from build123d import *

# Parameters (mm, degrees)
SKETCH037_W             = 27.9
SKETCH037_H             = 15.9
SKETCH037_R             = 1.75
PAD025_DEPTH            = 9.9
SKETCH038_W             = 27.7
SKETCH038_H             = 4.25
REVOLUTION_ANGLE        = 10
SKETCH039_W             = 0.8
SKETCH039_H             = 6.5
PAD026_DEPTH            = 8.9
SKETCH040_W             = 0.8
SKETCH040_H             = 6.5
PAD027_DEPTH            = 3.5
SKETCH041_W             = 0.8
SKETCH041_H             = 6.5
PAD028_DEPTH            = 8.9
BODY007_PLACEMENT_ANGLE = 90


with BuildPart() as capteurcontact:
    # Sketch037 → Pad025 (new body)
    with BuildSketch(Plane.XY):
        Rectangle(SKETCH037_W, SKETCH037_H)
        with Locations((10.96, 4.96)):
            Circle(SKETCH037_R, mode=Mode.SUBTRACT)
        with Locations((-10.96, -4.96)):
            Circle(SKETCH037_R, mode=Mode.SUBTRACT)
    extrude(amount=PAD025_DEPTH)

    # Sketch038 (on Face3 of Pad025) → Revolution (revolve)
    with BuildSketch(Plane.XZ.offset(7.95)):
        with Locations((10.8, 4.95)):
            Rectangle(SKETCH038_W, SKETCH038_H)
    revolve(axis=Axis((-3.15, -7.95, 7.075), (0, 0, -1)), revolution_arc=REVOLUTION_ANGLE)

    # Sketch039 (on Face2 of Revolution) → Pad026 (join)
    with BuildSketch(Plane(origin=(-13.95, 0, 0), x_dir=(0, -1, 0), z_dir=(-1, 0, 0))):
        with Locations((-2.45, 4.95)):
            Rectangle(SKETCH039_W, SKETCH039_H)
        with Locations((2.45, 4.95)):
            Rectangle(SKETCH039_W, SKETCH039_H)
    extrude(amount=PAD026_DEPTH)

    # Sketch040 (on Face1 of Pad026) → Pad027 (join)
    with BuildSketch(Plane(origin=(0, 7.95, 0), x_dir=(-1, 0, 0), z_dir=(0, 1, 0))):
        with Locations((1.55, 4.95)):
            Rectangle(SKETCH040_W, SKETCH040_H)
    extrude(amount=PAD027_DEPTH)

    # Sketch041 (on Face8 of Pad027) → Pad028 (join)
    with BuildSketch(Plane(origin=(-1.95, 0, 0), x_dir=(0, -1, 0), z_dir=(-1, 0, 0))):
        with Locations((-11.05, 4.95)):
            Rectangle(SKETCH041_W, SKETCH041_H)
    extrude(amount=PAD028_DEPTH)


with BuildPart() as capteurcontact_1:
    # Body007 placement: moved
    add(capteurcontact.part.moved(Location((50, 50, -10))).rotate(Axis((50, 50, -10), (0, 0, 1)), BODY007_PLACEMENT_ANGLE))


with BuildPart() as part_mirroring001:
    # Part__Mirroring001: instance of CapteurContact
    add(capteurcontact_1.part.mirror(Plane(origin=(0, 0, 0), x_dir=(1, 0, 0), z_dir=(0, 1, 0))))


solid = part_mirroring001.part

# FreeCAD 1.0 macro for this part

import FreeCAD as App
import Part
import Sketcher

doc = App.newDocument("Part")
body = doc.addObject("PartDesign::Body", "Body")

# Sketch on XY plane
sketch1 = doc.addObject("Sketcher::SketchObject", "Sketch")
body.addObject(sketch1)
sketch1.AttachmentSupport = (doc.XY_Plane, [""])
sketch1.MapMode = "FlatFace"
sketch1.addGeometry([
    Part.LineSegment(App.Vector(-13.9, 8, 0), App.Vector(-13.9, -8, 0)),  # 0
    Part.LineSegment(App.Vector(-13.9, -8, 0), App.Vector(13.9, -8, 0)),  # 1
    Part.LineSegment(App.Vector(13.9, -8, 0), App.Vector(13.9, 8, 0)),  # 2
    Part.LineSegment(App.Vector(13.9, 8, 0), App.Vector(-13.9, 8, 0)),  # 3
    Part.Circle(App.Vector(-11, -5, 0), App.Vector(0, 0, 1), 1.8),  # 4
    Part.Circle(App.Vector(11, 5, 0), App.Vector(0, 0, 1), 1.8),  # 5
], False)
sketch1.addConstraint([
    Sketcher.Constraint("Coincident", 0, 2, 1, 1),
    Sketcher.Constraint("Coincident", 1, 2, 2, 1),
    Sketcher.Constraint("Coincident", 2, 2, 3, 1),
    Sketcher.Constraint("Coincident", 3, 2, 0, 1),
    Sketcher.Constraint("Vertical", 0),
    Sketcher.Constraint("Horizontal", 1),
    Sketcher.Constraint("Vertical", 2),
    Sketcher.Constraint("Horizontal", 3),
    Sketcher.Constraint("Equal", 4, 5),
    Sketcher.Constraint("Symmetric", 4, 3, 5, 3, -1, 1),
    Sketcher.Constraint("Symmetric", 0, 2, 2, 2, -1, 1),
    Sketcher.Constraint("Diameter", 4, 3.5),
    Sketcher.Constraint("DistanceX", 1, 1, 1, 2, 27.9),
    Sketcher.Constraint("DistanceY", 0, 2, 0, 1, 15.9),
    Sketcher.Constraint("DistanceX", 4, 3, -1, 1, 10.96),
    Sketcher.Constraint("DistanceY", 4, 3, -1, 1, 4.96),
])
pad1 = doc.addObject("PartDesign::Pad", "Pad")
body.addObject(pad1)
pad1.Profile = sketch1
pad1.Length = 9.9

# Sketch on XZ plane
sketch2 = doc.addObject("Sketcher::SketchObject", "Sketch001")
body.addObject(sketch2)
sketch2.AttachmentSupport = (doc.XZ_Plane, [""])
sketch2.MapMode = "FlatFace"
sketch2.AttachmentOffset = App.Placement(App.Vector(0, 0, 7.95), App.Rotation())
sketch2.addGeometry([
    Part.LineSegment(App.Vector(-3, 7.1, 0), App.Vector(-3, 2.8, 0)),
    Part.LineSegment(App.Vector(-3, 2.8, 0), App.Vector(24.6, 2.8, 0)),
    Part.LineSegment(App.Vector(24.6, 2.8, 0), App.Vector(24.6, 7.1, 0)),
    Part.LineSegment(App.Vector(24.6, 7.1, 0), App.Vector(-3, 7.1, 0)),
], False)
sketch2.addGeometry(Part.LineSegment(App.Vector(-3.1, 7.1, 0), App.Vector(-3.1, 2.8, 0)), True)  # axis
sketch2.addConstraint([
    Sketcher.Constraint("Coincident", 0, 2, 1, 1),
    Sketcher.Constraint("Coincident", 1, 2, 2, 1),
    Sketcher.Constraint("Coincident", 2, 2, 3, 1),
    Sketcher.Constraint("Coincident", 3, 2, 0, 1),
    Sketcher.Constraint("Vertical", 0),
    Sketcher.Constraint("Horizontal", 1),
    Sketcher.Constraint("Vertical", 2),
    Sketcher.Constraint("Horizontal", 3),
    Sketcher.Constraint("Vertical", 4),
    Sketcher.Constraint("Horizontal", 3, 2, 4, 1),
    Sketcher.Constraint("Horizontal", 1, 2, 4, 2),
    Sketcher.Constraint("DistanceX", 1, 1, 1, 2, 27.7),
    Sketcher.Constraint("DistanceY", 0, 2, 0, 1, 4.25),
    Sketcher.Constraint("DistanceX", 4, 1, 3, 2, 0.1),
    Sketcher.Constraint("DistanceX", 0, 2, -1, 1, 3.05),
    Sketcher.Constraint("DistanceY", -1, 1, 0, 2, 2.825),
])
revolution = doc.addObject("PartDesign::Revolution", "Revolution")
body.addObject(revolution)
revolution.Profile = sketch2
revolution.ReferenceAxis = (sketch2, ["Axis0"])
revolution.Angle = 10

# Sketch on YZ plane
sketch3 = doc.addObject("Sketcher::SketchObject", "Sketch002")
body.addObject(sketch3)
sketch3.AttachmentSupport = (doc.YZ_Plane, [""])
sketch3.MapMode = "FlatFace"
sketch3.AttachmentOffset = App.Placement(App.Vector(0, 0, -13.95), App.Rotation())
sketch3.addGeometry([
    Part.LineSegment(App.Vector(2.9, 8.2, 0), App.Vector(2.9, 1.7, 0)),  # 0
    Part.LineSegment(App.Vector(2.9, 1.7, 0), App.Vector(2, 1.7, 0)),  # 1
    Part.LineSegment(App.Vector(2, 1.7, 0), App.Vector(2, 8.2, 0)),  # 2
    Part.LineSegment(App.Vector(2, 8.2, 0), App.Vector(2.9, 8.2, 0)),  # 3
    Part.LineSegment(App.Vector(-2, 8.2, 0), App.Vector(-2, 1.7, 0)),  # 4
    Part.LineSegment(App.Vector(-2, 1.7, 0), App.Vector(-2.9, 1.7, 0)),  # 5
    Part.LineSegment(App.Vector(-2.9, 1.7, 0), App.Vector(-2.9, 8.2, 0)),  # 6
    Part.LineSegment(App.Vector(-2.9, 8.2, 0), App.Vector(-2, 8.2, 0)),  # 7
], False)
sketch3.addConstraint([
    Sketcher.Constraint("Coincident", 0, 2, 1, 1),
    Sketcher.Constraint("Coincident", 1, 2, 2, 1),
    Sketcher.Constraint("Coincident", 2, 2, 3, 1),
    Sketcher.Constraint("Coincident", 3, 2, 0, 1),
    Sketcher.Constraint("Coincident", 4, 2, 5, 1),
    Sketcher.Constraint("Coincident", 5, 2, 6, 1),
    Sketcher.Constraint("Coincident", 6, 2, 7, 1),
    Sketcher.Constraint("Coincident", 7, 2, 4, 1),
    Sketcher.Constraint("Vertical", 0),
    Sketcher.Constraint("Horizontal", 1),
    Sketcher.Constraint("Vertical", 2),
    Sketcher.Constraint("Horizontal", 3),
    Sketcher.Constraint("Vertical", 4),
    Sketcher.Constraint("Horizontal", 5),
    Sketcher.Constraint("Vertical", 6),
    Sketcher.Constraint("Horizontal", 7),
    Sketcher.Constraint("Symmetric", 1, 2, 4, 2, -2),
    Sketcher.Constraint("Symmetric", 3, 2, 6, 2, -2),
    Sketcher.Constraint("DistanceX", 1, 2, 1, 1, 0.8),
    Sketcher.Constraint("DistanceY", 0, 2, 0, 1, 6.5),
    Sketcher.Constraint("DistanceY", -1, 1, 0, 2, 1.7),
    Sketcher.Constraint("DistanceX", 4, 2, 1, 2, 4.1),
])
pad2 = doc.addObject("PartDesign::Pad", "Pad001")
body.addObject(pad2)
pad2.Profile = sketch3
pad2.Length = 8.9
pad2.Reversed = True

# Sketch on XZ plane
sketch4 = doc.addObject("Sketcher::SketchObject", "Sketch003")
body.addObject(sketch4)
sketch4.AttachmentSupport = (doc.XZ_Plane, [""])
sketch4.MapMode = "FlatFace"
sketch4.AttachmentOffset = App.Placement(App.Vector(0, 0, -7.95), App.Rotation())
sketch4.addGeometry([
    Part.LineSegment(App.Vector(-1.1, 8.2, 0), App.Vector(-1.1, 1.7, 0)),
    Part.LineSegment(App.Vector(-1.1, 1.7, 0), App.Vector(-1.9, 1.7, 0)),
    Part.LineSegment(App.Vector(-1.9, 1.7, 0), App.Vector(-1.9, 8.2, 0)),
    Part.LineSegment(App.Vector(-1.9, 8.2, 0), App.Vector(-1.1, 8.2, 0)),
], False)
sketch4.addConstraint([
    Sketcher.Constraint("Coincident", 0, 2, 1, 1),
    Sketcher.Constraint("Coincident", 1, 2, 2, 1),
    Sketcher.Constraint("Coincident", 2, 2, 3, 1),
    Sketcher.Constraint("Coincident", 3, 2, 0, 1),
    Sketcher.Constraint("Vertical", 0),
    Sketcher.Constraint("Horizontal", 1),
    Sketcher.Constraint("Vertical", 2),
    Sketcher.Constraint("Horizontal", 3),
    Sketcher.Constraint("DistanceX", 1, 2, 1, 1, 0.8),
    Sketcher.Constraint("DistanceY", 0, 2, 0, 1, 6.5),
    Sketcher.Constraint("DistanceY", -1, 1, 0, 2, 1.7),
    Sketcher.Constraint("DistanceX", 0, 2, -1, 1, 1.15),
])
pad3 = doc.addObject("PartDesign::Pad", "Pad002")
body.addObject(pad3)
pad3.Profile = sketch4
pad3.Length = 3.5
pad3.Reversed = True

# Sketch on YZ plane
sketch5 = doc.addObject("Sketcher::SketchObject", "Sketch004")
body.addObject(sketch5)
sketch5.AttachmentSupport = (doc.YZ_Plane, [""])
sketch5.MapMode = "FlatFace"
sketch5.AttachmentOffset = App.Placement(App.Vector(0, 0, -1.95), App.Rotation())
sketch5.addGeometry([
    Part.LineSegment(App.Vector(11.4, 8.2, 0), App.Vector(11.4, 1.7, 0)),
    Part.LineSegment(App.Vector(11.4, 1.7, 0), App.Vector(10.7, 1.7, 0)),
    Part.LineSegment(App.Vector(10.7, 1.7, 0), App.Vector(10.7, 8.2, 0)),
    Part.LineSegment(App.Vector(10.7, 8.2, 0), App.Vector(11.4, 8.2, 0)),
], False)
sketch5.addConstraint([
    Sketcher.Constraint("Coincident", 0, 2, 1, 1),
    Sketcher.Constraint("Coincident", 1, 2, 2, 1),
    Sketcher.Constraint("Coincident", 2, 2, 3, 1),
    Sketcher.Constraint("Coincident", 3, 2, 0, 1),
    Sketcher.Constraint("Vertical", 0),
    Sketcher.Constraint("Horizontal", 1),
    Sketcher.Constraint("Vertical", 2),
    Sketcher.Constraint("Horizontal", 3),
    Sketcher.Constraint("DistanceX", 1, 2, 1, 1, 0.8),
    Sketcher.Constraint("DistanceY", 0, 2, 0, 1, 6.5),
    Sketcher.Constraint("DistanceY", -1, 1, 0, 2, 1.7),
    Sketcher.Constraint("DistanceX", -1, 1, 0, 2, 11.45),
])
pad4 = doc.addObject("PartDesign::Pad", "Pad003")
body.addObject(pad4)
pad4.Profile = sketch5
pad4.Length = 8.9
pad4.Reversed = True
body2 = doc.addObject("PartDesign::Body", "Body001")
doc.recompute()

body.Placement = App.Placement(App.Vector(50, 50, -10), App.Rotation(App.Vector(0, 0, 1), 90))
boolean = doc.addObject("PartDesign::Boolean", "Boolean")
body2.addObject(boolean)
boolean.Type = "Fuse"
boolean.addObjects([body])
body3 = doc.addObject("PartDesign::Body", "Body002")
doc.recompute()

mirroring = doc.addObject("Part::Mirroring", "Mirroring")
mirroring.Source = body2
mirroring.Base = App.Vector(0, 0, 0)
mirroring.Normal = App.Vector(0, 1, 0)
body3.BaseFeature = mirroring
doc.recompute()
body2.Visibility = False
mirroring.Visibility = False

doc.recompute()
